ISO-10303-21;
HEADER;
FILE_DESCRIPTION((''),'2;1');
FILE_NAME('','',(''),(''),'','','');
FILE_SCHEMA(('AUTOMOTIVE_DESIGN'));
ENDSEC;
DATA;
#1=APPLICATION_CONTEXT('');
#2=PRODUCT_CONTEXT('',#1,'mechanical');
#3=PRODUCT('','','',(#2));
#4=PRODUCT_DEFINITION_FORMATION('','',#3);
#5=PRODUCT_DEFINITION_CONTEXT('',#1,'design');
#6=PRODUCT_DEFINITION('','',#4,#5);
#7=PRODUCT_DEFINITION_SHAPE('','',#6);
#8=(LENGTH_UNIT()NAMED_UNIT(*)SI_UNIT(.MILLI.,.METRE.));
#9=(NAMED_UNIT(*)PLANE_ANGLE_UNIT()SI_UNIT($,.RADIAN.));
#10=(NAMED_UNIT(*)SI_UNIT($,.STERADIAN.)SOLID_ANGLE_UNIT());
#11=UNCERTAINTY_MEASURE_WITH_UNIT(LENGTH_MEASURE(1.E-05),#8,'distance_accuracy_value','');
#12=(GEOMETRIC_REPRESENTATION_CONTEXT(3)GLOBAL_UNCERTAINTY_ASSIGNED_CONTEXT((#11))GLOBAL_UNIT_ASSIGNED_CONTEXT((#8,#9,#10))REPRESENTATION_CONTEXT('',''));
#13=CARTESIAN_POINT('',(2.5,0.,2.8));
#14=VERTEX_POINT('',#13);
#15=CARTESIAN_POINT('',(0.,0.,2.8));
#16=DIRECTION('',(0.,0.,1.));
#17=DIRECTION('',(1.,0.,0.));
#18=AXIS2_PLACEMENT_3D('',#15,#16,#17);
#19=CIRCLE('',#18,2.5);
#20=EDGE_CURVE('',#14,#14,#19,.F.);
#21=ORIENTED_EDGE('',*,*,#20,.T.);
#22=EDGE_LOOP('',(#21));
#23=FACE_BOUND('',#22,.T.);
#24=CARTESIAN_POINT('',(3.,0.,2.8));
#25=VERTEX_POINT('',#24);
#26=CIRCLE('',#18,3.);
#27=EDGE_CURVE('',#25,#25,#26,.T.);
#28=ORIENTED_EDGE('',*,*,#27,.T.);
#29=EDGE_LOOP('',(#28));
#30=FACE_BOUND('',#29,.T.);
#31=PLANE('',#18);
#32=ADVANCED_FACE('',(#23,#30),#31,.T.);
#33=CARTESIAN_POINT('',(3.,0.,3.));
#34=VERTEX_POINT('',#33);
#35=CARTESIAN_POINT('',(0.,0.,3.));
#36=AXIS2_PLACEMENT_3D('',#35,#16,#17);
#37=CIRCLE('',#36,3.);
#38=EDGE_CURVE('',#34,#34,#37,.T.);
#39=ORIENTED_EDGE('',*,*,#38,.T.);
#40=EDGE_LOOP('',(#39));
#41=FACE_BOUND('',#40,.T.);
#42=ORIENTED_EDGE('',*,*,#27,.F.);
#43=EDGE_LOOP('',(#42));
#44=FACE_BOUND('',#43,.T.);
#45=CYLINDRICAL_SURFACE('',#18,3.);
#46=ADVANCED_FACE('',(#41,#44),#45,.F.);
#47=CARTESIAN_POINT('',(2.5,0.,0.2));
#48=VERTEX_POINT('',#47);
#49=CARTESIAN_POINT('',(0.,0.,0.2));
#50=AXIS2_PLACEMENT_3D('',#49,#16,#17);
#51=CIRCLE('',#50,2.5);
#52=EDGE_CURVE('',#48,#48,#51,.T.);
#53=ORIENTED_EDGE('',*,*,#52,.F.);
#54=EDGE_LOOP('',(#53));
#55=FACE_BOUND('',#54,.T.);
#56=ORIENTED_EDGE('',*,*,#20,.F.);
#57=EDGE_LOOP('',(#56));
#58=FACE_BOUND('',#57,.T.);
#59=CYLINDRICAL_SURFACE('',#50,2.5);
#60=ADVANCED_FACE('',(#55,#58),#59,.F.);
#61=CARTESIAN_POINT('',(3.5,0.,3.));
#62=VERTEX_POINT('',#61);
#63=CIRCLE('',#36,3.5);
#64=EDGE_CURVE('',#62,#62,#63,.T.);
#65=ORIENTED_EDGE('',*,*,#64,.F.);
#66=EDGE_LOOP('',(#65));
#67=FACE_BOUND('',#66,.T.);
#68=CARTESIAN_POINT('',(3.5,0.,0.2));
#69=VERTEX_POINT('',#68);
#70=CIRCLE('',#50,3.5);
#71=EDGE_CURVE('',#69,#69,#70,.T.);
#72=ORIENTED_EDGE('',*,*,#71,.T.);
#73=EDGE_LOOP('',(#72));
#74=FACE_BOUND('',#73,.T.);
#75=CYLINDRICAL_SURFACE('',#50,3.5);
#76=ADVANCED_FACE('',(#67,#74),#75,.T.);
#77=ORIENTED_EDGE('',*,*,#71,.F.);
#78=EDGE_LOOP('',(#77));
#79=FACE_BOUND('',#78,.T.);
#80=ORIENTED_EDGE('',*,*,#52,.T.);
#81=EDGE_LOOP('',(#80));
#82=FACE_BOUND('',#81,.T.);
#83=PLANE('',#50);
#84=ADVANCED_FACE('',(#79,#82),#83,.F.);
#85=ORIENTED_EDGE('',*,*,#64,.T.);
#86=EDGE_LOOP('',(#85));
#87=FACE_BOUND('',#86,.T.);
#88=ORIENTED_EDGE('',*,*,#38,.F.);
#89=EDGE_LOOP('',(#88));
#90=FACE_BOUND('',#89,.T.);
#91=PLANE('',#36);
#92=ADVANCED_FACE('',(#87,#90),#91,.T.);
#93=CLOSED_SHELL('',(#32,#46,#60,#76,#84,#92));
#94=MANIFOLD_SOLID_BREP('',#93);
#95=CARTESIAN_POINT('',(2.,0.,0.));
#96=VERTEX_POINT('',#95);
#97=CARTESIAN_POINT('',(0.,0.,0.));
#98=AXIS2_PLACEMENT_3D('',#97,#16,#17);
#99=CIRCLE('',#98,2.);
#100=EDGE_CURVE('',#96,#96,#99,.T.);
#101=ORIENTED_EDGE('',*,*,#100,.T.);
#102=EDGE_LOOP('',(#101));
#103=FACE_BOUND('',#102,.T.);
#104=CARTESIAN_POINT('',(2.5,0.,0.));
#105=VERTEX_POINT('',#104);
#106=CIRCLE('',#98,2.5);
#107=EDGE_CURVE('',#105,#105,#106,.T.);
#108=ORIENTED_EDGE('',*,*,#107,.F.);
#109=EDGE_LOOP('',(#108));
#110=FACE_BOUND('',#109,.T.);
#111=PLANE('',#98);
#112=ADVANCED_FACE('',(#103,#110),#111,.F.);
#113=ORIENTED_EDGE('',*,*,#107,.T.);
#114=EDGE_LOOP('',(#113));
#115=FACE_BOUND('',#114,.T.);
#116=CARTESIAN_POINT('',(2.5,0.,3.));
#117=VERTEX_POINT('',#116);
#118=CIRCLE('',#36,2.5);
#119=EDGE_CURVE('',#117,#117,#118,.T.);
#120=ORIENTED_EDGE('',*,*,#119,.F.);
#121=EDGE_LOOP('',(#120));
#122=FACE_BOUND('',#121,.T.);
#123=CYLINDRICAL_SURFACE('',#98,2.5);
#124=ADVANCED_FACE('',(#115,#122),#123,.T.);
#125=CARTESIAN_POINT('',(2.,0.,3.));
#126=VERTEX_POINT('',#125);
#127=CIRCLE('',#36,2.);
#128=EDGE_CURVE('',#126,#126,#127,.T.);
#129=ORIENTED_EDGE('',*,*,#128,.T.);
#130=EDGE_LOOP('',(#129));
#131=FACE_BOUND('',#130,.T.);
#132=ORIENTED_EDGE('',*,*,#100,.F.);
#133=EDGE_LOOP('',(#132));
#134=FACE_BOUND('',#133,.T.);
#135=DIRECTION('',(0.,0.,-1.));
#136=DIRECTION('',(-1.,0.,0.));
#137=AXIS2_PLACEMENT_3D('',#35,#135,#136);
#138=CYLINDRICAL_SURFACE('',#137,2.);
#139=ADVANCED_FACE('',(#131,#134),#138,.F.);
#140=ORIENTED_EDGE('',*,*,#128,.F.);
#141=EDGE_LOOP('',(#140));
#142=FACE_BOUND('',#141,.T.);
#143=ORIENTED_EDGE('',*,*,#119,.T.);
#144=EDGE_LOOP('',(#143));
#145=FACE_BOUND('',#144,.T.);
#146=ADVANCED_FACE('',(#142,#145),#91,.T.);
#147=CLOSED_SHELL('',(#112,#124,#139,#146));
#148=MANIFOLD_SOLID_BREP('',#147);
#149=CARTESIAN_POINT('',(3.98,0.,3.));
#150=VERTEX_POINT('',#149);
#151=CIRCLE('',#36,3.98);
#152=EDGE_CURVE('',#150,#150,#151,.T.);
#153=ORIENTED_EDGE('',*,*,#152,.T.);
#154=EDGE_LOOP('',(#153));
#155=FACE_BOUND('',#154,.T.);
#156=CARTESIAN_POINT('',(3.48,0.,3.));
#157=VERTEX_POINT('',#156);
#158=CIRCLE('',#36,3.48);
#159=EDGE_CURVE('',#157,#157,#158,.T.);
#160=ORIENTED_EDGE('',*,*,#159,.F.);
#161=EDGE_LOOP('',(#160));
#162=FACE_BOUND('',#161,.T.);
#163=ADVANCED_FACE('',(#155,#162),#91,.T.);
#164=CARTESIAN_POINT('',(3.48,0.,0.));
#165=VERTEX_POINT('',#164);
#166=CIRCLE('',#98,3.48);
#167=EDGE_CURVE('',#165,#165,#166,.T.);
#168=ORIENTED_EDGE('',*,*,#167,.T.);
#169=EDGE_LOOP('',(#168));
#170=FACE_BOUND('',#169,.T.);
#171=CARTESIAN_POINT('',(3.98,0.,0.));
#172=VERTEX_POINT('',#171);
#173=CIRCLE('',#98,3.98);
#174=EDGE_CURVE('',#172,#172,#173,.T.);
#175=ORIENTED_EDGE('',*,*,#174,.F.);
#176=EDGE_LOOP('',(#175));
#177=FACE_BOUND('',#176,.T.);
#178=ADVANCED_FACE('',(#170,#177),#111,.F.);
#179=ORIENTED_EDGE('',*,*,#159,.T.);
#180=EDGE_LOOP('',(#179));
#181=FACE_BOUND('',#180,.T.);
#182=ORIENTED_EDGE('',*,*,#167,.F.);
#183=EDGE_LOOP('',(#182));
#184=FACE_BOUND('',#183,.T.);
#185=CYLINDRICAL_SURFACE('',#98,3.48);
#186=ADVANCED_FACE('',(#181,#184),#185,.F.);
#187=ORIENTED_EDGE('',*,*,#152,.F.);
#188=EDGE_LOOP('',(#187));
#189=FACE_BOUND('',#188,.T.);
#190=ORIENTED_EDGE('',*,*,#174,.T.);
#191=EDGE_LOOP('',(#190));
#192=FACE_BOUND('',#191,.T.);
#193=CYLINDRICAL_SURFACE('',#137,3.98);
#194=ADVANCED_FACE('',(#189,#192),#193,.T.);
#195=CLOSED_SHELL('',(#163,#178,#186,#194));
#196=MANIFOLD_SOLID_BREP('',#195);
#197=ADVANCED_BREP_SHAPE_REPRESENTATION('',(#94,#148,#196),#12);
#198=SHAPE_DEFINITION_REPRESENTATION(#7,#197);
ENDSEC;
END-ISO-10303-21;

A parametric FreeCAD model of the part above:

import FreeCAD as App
import Part
import Sketcher

V = App.Vector
Q = App.Units.Quantity

doc = App.newDocument("Part")
body = doc.addObject("PartDesign::Body", "Body")
body.AllowCompound = True

# Sketch on XY plane
sketch1 = doc.addObject("Sketcher::SketchObject", "Sketch")
body.addObject(sketch1)
sketch1.AttachmentSupport = (doc.XY_Plane, [""])
sketch1.MapMode = "FlatFace"
sketch1.addGeometry([
    Part.Circle(V(0, 0, 0), V(0, 0, 1), 4),
    Part.Circle(V(0, 0, 0), V(0, 0, 1), 2),
], False)
sketch1.addConstraint([
    Sketcher.Constraint("Coincident", 0, 3, -1, 1),
    Sketcher.Constraint("Coincident", 1, 3, -1, 1),
    Sketcher.Constraint("Diameter", 1, Q("4 mm")),
    Sketcher.Constraint("Diameter", 0, Q("7.96 mm")),
])
pad1 = doc.addObject("PartDesign::Pad", "Pad")
body.addObject(pad1)
pad1.Profile = sketch1
pad1.Length = 3

# Sketch on XY plane
sketch2 = doc.addObject("Sketcher::SketchObject", "Sketch001")
body.addObject(sketch2)
sketch2.AttachmentSupport = (doc.XY_Plane, [""])
sketch2.MapMode = "FlatFace"
sketch2.AttachmentOffset = App.Placement(V(0, 0, 3), App.Rotation())
sketch2.addGeometry([
    Part.Circle(V(0, 0, 0), V(0, 0, 1), 3.5),
    Part.Circle(V(0, 0, 0), V(0, 0, 1), 2.5),
], False)
sketch2.addConstraint([
    Sketcher.Constraint("Coincident", 0, 3, -1, 1),
    Sketcher.Constraint("Coincident", 1, 3, -1, 1),
    Sketcher.Constraint("Diameter", 1, Q("5 mm")),
    Sketcher.Constraint("Diameter", 0, Q("6.96 mm")),
])
pocket1 = doc.addObject("PartDesign::Pocket", "Pocket")
body.addObject(pocket1)
pocket1.Profile = sketch2
pocket1.Length = 3
body2 = doc.addObject("PartDesign::Body", "Body001")

# Sketch on XY plane
sketch3 = doc.addObject("Sketcher::SketchObject", "Sketch002")
body2.addObject(sketch3)
sketch3.AttachmentSupport = (doc.getObject("XY_Plane001"), [""])
sketch3.MapMode = "FlatFace"
sketch3.AttachmentOffset = App.Placement(V(0, 0, 3), App.Rotation())
sketch3.addGeometry([
    Part.Circle(V(0, 0, 0), V(0, 0, 1), 3.5),
    Part.Circle(V(0, 0, 0), V(0, 0, 1), 2.5),
], False)
sketch3.addConstraint([
    Sketcher.Constraint("Coincident", 0, 3, -1, 1),
    Sketcher.Constraint("Coincident", 1, 3, -1, 1),
    Sketcher.Constraint("Diameter", 0, Q("7 mm")),
    Sketcher.Constraint("Diameter", 1, Q("5 mm")),
])
pad2 = doc.addObject("PartDesign::Pad", "Pad001")
body2.addObject(pad2)
pad2.Profile = sketch3
pad2.Length = 2.8
pad2.Reversed = True

# Sketch on XY plane
sketch4 = doc.addObject("Sketcher::SketchObject", "Sketch003")
body2.addObject(sketch4)
sketch4.AttachmentSupport = (doc.getObject("XY_Plane001"), [""])
sketch4.MapMode = "FlatFace"
sketch4.AttachmentOffset = App.Placement(V(0, 0, 3), App.Rotation())
sketch4.addGeometry([
    Part.Circle(V(0, 0, 0), V(0, 0, 1), 3),
    Part.Circle(V(0, 0, 0), V(0, 0, 1), 2),
], False)
sketch4.addConstraint([
    Sketcher.Constraint("Coincident", 0, 3, -1, 1),
    Sketcher.Constraint("Coincident", 1, 3, -1, 1),
    Sketcher.Constraint("Diameter", 0, Q("6 mm")),
    Sketcher.Constraint("Diameter", 1, Q("4 mm")),
])
pocket2 = doc.addObject("PartDesign::Pocket", "Pocket001")
body2.addObject(pocket2)
pocket2.Profile = sketch4
pocket2.Length = 0.2

doc.recompute()
